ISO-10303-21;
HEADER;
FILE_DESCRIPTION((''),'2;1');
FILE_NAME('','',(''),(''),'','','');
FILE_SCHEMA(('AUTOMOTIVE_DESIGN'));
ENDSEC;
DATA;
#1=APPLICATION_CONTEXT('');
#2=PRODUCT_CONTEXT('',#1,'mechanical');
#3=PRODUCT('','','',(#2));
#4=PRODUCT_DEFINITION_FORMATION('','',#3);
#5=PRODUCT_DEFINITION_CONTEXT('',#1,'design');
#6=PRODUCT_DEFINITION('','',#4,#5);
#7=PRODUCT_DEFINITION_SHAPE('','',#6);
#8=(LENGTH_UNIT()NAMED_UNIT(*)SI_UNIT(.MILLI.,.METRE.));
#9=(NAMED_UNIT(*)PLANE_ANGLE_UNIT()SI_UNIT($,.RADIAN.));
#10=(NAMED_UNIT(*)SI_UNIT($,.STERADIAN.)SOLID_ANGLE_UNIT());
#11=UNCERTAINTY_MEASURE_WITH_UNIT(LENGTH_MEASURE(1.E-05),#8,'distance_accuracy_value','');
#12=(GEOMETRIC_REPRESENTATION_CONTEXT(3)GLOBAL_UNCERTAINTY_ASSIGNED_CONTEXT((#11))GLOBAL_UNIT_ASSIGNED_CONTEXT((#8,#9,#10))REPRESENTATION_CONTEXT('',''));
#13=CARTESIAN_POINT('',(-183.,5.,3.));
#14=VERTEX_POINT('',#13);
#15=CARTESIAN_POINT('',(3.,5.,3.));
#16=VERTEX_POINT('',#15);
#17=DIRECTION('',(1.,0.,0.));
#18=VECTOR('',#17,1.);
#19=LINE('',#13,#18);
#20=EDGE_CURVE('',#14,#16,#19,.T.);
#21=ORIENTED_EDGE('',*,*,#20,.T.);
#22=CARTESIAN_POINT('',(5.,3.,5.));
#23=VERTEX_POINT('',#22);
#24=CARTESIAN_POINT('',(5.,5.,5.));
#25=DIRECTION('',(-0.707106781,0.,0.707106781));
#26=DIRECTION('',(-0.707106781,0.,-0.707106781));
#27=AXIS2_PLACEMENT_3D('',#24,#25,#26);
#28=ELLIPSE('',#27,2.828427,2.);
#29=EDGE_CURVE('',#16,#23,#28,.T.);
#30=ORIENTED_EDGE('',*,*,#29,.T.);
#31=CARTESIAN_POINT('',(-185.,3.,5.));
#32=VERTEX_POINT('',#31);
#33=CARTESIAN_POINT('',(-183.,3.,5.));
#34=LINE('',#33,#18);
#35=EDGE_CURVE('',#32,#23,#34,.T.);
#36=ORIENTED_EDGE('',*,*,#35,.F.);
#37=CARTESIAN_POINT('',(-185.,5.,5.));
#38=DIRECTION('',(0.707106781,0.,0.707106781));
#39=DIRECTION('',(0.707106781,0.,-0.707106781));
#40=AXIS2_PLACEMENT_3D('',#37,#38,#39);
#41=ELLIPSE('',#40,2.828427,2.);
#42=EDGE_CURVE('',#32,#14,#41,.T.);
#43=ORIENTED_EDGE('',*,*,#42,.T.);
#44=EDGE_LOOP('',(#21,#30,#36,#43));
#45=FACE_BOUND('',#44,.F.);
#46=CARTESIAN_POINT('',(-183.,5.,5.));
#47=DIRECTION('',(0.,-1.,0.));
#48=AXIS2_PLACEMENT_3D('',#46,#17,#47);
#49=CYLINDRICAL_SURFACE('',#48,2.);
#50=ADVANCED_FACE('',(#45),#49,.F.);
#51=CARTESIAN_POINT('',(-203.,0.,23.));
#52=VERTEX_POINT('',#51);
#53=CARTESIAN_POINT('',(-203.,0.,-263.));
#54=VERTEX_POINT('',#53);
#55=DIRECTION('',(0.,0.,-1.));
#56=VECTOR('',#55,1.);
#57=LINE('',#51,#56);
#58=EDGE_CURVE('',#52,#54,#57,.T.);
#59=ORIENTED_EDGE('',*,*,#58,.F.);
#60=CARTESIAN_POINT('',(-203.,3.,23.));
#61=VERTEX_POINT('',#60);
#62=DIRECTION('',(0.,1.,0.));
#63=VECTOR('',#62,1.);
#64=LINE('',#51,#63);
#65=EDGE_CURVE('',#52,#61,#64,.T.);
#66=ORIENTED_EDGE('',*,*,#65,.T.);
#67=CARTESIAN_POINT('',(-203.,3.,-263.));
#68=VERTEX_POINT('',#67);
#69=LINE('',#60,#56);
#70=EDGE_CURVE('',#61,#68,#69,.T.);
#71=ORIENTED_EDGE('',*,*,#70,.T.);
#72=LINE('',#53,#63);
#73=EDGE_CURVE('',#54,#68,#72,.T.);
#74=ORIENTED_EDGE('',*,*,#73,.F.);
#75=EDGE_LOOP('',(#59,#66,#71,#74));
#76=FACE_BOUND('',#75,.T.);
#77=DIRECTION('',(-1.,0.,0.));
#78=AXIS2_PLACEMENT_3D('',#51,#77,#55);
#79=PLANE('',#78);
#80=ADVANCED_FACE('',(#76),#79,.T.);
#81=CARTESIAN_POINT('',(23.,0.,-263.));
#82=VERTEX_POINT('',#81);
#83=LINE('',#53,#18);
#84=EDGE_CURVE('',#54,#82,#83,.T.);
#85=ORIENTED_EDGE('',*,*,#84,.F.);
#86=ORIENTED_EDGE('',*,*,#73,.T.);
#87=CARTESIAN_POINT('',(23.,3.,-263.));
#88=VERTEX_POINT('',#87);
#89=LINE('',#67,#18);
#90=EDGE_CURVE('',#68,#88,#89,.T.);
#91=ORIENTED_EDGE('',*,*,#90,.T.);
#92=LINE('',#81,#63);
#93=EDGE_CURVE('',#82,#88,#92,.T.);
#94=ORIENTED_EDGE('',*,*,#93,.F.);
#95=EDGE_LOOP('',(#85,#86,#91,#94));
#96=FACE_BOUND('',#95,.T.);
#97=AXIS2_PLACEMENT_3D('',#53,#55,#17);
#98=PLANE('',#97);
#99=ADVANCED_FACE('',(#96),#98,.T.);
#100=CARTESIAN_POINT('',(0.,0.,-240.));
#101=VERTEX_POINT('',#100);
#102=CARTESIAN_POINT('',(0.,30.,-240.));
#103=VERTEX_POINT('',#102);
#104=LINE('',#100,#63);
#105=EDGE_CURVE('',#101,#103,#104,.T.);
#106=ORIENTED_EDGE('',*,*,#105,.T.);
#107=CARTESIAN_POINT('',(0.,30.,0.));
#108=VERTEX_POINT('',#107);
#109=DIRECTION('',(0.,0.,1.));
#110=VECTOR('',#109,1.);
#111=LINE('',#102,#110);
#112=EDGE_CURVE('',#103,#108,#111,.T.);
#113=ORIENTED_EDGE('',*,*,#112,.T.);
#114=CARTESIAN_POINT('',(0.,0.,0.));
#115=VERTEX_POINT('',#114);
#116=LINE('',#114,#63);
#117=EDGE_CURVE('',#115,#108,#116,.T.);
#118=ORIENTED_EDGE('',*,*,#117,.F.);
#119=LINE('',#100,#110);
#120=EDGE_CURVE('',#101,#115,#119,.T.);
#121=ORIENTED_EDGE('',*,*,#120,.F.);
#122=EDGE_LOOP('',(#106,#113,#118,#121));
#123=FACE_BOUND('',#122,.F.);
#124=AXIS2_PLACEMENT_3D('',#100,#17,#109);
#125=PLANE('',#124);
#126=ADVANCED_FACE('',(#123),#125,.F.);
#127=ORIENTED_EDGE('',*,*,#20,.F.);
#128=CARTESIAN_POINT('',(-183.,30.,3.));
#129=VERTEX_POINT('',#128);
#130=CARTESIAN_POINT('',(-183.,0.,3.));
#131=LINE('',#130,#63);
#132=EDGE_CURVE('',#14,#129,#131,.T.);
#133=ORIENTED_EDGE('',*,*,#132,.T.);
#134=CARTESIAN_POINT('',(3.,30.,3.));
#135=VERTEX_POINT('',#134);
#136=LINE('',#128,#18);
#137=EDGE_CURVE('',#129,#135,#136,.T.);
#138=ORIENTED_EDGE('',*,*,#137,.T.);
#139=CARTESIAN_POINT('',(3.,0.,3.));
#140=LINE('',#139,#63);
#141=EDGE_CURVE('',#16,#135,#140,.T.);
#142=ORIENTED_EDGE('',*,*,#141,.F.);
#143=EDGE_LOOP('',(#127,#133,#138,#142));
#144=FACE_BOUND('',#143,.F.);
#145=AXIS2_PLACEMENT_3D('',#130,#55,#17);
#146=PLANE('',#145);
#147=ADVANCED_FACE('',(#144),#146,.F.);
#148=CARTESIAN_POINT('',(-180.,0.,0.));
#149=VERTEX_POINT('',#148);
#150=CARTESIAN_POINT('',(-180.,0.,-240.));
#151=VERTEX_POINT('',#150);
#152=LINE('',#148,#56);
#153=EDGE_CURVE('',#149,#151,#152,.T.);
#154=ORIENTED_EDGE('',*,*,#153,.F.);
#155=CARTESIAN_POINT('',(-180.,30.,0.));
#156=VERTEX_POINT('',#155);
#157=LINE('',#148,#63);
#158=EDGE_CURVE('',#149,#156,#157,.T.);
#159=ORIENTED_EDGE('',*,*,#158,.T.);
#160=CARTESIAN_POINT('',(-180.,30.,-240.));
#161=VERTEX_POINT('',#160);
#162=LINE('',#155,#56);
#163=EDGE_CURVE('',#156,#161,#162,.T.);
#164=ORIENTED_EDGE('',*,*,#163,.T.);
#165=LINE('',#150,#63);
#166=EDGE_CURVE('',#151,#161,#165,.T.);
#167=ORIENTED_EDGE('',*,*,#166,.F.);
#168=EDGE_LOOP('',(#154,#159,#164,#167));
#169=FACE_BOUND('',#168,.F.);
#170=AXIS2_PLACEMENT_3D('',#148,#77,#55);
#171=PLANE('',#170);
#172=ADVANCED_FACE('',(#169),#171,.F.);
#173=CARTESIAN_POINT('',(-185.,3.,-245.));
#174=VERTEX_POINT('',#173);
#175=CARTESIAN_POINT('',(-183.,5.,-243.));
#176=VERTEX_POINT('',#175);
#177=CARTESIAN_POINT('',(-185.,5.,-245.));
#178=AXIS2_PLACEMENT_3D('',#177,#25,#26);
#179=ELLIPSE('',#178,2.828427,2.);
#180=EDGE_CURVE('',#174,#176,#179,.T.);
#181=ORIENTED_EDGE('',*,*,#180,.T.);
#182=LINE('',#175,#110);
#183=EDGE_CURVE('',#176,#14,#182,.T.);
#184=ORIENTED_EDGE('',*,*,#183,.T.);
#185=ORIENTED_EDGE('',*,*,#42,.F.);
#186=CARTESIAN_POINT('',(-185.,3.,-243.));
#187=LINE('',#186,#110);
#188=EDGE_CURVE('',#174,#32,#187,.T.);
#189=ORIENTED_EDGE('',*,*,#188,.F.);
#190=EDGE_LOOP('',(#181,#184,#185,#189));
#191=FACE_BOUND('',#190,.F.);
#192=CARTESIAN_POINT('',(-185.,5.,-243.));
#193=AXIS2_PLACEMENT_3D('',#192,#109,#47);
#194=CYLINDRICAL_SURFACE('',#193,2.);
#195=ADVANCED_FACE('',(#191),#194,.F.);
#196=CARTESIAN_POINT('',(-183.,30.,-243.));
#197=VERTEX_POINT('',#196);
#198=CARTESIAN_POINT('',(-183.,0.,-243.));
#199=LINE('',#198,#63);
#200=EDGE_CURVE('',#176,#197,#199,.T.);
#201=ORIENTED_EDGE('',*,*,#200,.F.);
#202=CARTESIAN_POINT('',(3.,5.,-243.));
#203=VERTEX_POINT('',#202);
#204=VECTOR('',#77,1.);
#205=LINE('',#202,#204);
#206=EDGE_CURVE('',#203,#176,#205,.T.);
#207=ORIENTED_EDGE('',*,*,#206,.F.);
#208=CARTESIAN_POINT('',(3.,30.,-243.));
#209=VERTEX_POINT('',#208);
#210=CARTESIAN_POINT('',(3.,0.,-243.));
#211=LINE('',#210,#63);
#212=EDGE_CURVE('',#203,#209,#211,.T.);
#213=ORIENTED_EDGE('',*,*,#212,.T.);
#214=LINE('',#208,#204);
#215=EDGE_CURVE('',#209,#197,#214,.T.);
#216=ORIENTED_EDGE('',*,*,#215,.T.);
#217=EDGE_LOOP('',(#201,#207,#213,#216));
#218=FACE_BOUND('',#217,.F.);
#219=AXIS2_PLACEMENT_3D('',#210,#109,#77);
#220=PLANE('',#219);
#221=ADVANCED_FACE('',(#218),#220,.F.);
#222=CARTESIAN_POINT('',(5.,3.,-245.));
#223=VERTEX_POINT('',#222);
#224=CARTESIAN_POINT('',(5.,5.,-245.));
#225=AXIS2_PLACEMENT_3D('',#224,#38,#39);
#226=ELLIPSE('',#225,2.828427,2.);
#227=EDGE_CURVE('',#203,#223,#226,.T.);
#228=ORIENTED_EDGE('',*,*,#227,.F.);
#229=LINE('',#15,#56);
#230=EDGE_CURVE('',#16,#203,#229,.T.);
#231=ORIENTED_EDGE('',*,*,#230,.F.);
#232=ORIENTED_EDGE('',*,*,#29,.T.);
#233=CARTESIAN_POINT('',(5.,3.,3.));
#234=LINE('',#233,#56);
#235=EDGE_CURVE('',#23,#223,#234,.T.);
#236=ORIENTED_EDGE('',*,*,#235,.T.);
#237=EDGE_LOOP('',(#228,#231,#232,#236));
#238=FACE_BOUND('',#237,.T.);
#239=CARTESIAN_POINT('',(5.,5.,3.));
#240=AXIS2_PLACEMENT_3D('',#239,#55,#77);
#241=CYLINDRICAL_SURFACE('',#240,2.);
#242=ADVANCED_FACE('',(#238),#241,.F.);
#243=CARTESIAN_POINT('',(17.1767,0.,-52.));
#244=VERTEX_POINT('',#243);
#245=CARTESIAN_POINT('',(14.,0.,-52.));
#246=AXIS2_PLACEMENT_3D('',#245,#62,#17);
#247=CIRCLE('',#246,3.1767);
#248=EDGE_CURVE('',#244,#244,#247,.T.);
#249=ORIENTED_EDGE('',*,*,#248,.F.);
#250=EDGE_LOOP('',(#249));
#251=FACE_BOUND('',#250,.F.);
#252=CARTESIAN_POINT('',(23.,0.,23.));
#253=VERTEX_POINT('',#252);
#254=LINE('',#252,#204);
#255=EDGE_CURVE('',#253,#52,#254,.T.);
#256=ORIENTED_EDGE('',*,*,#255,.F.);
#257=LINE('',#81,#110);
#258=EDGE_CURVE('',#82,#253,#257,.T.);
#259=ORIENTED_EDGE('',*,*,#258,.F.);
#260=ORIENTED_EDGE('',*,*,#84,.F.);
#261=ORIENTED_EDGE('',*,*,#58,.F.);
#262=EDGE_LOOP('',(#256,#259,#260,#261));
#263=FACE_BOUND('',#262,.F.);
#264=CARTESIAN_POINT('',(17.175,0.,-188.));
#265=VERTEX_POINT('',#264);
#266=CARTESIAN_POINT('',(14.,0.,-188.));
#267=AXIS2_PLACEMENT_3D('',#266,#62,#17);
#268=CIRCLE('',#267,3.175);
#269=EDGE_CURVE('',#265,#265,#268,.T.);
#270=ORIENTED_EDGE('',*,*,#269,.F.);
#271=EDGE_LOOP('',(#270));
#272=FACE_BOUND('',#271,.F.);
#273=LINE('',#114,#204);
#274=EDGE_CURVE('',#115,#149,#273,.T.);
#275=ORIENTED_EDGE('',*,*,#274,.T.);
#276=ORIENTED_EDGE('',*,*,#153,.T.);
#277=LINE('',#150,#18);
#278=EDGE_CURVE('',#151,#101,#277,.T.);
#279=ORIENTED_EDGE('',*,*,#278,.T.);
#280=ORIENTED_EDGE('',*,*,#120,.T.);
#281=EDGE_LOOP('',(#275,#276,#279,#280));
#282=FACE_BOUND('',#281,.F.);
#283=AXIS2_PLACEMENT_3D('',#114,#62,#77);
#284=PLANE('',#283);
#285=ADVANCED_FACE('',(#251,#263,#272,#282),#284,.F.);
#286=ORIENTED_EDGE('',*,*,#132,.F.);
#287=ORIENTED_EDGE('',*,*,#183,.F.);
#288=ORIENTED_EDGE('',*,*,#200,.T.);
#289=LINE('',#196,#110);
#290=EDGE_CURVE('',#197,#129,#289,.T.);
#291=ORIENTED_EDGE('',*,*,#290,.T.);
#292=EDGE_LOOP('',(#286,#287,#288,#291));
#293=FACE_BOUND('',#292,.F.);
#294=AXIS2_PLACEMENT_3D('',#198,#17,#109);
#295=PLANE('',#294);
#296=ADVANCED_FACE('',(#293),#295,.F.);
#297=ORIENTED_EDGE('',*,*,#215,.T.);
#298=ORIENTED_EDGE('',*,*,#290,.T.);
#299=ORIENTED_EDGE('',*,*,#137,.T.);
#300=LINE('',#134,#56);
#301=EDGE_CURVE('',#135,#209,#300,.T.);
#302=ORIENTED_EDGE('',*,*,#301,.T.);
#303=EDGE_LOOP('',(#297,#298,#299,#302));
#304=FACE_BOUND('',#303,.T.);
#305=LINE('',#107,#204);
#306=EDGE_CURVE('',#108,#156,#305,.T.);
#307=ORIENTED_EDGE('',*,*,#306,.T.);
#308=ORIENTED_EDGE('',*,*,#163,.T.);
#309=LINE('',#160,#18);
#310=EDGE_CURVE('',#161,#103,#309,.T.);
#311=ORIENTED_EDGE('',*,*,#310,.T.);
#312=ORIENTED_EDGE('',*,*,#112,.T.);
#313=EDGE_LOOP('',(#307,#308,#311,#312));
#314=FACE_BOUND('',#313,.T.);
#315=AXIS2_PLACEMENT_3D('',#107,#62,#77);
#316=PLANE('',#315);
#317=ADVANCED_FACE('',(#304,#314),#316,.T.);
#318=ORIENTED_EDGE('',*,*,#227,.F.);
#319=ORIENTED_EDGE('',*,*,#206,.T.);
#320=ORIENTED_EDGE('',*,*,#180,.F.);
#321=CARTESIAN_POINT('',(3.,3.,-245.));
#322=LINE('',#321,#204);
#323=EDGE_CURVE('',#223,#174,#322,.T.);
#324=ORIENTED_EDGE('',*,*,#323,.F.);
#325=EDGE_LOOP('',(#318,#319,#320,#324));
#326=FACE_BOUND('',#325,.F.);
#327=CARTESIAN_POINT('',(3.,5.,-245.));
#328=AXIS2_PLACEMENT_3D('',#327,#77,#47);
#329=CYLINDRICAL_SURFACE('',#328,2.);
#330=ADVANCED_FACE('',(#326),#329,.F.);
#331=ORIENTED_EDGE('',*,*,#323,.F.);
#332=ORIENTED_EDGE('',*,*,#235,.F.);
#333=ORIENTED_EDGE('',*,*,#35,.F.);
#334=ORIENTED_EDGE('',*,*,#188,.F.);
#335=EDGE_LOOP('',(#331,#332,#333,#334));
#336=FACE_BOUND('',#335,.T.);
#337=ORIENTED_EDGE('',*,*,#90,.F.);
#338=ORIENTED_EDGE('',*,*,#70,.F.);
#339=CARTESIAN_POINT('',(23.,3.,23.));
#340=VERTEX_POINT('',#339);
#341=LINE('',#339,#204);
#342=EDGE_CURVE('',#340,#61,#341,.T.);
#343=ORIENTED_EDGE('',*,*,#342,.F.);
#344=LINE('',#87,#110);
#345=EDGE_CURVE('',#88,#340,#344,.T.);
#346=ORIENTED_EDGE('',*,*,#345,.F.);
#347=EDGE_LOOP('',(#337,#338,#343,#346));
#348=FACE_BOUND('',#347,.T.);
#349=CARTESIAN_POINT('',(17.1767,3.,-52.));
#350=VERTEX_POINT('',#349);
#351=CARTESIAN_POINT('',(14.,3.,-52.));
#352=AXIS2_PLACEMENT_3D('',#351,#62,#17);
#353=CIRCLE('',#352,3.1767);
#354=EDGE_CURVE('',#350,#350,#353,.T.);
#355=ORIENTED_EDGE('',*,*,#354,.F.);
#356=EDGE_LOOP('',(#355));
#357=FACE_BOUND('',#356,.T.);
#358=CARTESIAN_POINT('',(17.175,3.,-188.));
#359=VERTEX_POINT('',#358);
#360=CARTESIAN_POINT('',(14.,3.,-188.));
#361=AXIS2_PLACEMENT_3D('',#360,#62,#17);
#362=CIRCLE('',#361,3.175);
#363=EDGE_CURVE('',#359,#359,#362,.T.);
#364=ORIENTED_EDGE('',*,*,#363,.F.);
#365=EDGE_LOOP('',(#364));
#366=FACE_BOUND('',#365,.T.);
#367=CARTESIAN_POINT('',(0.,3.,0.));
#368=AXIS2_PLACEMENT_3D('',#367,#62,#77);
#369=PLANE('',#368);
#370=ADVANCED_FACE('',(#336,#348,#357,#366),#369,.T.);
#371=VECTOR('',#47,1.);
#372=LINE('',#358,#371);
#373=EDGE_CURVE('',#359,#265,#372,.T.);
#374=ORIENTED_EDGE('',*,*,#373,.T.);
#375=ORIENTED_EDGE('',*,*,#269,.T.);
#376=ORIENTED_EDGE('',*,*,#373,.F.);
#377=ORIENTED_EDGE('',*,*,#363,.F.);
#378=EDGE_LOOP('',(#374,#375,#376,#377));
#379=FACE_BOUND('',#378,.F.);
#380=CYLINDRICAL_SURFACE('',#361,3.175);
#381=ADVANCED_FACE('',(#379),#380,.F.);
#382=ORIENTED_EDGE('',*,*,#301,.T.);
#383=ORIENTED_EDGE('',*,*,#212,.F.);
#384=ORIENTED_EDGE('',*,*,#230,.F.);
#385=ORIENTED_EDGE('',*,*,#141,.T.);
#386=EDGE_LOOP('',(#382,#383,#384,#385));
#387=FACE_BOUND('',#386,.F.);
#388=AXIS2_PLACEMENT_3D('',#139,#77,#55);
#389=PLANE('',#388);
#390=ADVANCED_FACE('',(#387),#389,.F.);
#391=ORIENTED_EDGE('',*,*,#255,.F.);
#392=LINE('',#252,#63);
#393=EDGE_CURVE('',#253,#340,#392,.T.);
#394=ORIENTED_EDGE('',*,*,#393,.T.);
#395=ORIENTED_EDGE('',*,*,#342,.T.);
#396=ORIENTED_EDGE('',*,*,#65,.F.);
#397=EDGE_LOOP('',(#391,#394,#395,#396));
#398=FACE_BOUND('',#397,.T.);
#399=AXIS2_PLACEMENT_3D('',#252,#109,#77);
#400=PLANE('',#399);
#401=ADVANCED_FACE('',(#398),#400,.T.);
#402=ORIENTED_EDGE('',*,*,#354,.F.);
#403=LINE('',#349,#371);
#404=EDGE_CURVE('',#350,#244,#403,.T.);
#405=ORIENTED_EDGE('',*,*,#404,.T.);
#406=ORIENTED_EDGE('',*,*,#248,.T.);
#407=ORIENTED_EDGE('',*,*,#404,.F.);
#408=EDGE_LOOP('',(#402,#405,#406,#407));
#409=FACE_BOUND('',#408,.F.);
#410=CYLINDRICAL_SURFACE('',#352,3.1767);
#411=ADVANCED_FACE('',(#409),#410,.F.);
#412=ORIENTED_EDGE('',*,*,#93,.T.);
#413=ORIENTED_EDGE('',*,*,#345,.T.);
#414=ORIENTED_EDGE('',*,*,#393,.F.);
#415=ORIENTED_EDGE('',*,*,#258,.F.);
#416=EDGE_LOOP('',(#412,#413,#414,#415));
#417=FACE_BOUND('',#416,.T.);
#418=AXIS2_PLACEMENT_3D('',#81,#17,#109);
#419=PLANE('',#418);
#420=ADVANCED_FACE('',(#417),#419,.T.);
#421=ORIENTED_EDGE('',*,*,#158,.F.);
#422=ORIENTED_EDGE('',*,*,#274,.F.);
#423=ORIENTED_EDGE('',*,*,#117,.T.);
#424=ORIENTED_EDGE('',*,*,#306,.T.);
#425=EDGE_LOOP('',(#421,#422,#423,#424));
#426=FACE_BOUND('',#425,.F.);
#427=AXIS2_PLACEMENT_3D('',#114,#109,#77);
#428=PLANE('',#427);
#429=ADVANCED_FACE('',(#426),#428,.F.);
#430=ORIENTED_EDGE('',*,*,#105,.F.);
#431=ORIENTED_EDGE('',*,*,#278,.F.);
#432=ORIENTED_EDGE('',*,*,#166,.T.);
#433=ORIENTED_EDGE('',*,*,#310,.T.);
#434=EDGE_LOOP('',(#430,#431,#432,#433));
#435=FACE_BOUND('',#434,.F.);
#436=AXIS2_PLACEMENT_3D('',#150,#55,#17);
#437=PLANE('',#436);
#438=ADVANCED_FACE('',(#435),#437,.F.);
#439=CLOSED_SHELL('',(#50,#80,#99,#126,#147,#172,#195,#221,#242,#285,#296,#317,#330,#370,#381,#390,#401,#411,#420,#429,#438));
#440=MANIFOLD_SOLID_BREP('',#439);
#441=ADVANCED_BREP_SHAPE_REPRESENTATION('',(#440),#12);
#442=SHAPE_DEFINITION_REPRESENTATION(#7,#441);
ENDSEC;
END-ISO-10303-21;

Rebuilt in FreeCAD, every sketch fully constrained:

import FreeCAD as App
import Part
import Sketcher
Q = App.Units.Quantity


def edges_at(feature, points):
    """Names of the edges that pass closest to the given points."""
    edges = feature.Shape.Edges
    near = lambda p: min(range(len(edges)), key=lambda i: edges[i].distToShape(Part.Vertex(*p))[0])
    return sorted({f"Edge{near(p) + 1}" for p in points})

doc = App.newDocument("Part")
body = doc.addObject("PartDesign::Body", "Body")

sketch1 = doc.addObject("Sketcher::SketchObject", "Sketch")
body.addObject(sketch1)
sketch1.AttachmentSupport = (doc.XZ_Plane, [""])
sketch1.MapMode = "FlatFace"
sketch1.addGeometry([
    Part.LineSegment(App.Vector(3, 3, 0), App.Vector(3, -243, 0)),
    Part.LineSegment(App.Vector(3, -243, 0), App.Vector(-183, -243, 0)),
    Part.LineSegment(App.Vector(-183, -243, 0), App.Vector(-183, 3, 0)),
    Part.LineSegment(App.Vector(-183, 3, 0), App.Vector(3, 3, 0)),
    Part.LineSegment(App.Vector(0, -240, 0), App.Vector(0, 0, 0)),
    Part.LineSegment(App.Vector(0, 0, 0), App.Vector(-180, 0, 0)),
    Part.LineSegment(App.Vector(-180, 0, 0), App.Vector(-180, -240, 0)),
    Part.LineSegment(App.Vector(-180, -240, 0), App.Vector(0, -240, 0)),
], False)
sketch1.addConstraint([
    Sketcher.Constraint("Coincident", 0, 2, 1, 1),
    Sketcher.Constraint("Coincident", 1, 2, 2, 1),
    Sketcher.Constraint("Coincident", 2, 2, 3, 1),
    Sketcher.Constraint("Coincident", 3, 2, 0, 1),
    Sketcher.Constraint("Coincident", 4, 2, 5, 1),
    Sketcher.Constraint("Coincident", 5, 2, 6, 1),
    Sketcher.Constraint("Coincident", 6, 2, 7, 1),
    Sketcher.Constraint("Coincident", 7, 2, 4, 1),
    Sketcher.Constraint("Vertical", 0),
    Sketcher.Constraint("Horizontal", 1),
    Sketcher.Constraint("Vertical", 2),
    Sketcher.Constraint("Horizontal", 3),
    Sketcher.Constraint("Vertical", 4),
    Sketcher.Constraint("Horizontal", 5),
    Sketcher.Constraint("Vertical", 6),
    Sketcher.Constraint("Horizontal", 7),
    Sketcher.Constraint("Coincident", 4, 2, -1, 1),
    Sketcher.Constraint("DistanceX", 5, 2, 5, 1, Q("180 mm")),
    Sketcher.Constraint("DistanceY", 4, 1, 4, 2, Q("240 mm")),
    Sketcher.Constraint("DistanceX", -1, 1, 0, 2, Q("3 mm")),
    Sketcher.Constraint("DistanceY", -1, 1, 2, 2, Q("3 mm")),
    Sketcher.Constraint("DistanceX", 2, 2, 5, 2, Q("3 mm")),
    Sketcher.Constraint("DistanceY", 1, 2, 6, 2, Q("3 mm")),
])
pad1 = doc.addObject("PartDesign::Pad", "Pad")
body.addObject(pad1)
pad1.Profile = sketch1
pad1.Length = 30
pad1.Reversed = True

sketch2 = doc.addObject("Sketcher::SketchObject", "Sketch001")
body.addObject(sketch2)
sketch2.AttachmentSupport = (doc.XZ_Plane, [""])
sketch2.MapMode = "FlatFace"
sketch2.addGeometry([
    Part.LineSegment(App.Vector(-203, -263, 0), App.Vector(-203, 23, 0)),
    Part.LineSegment(App.Vector(-203, 23, 0), App.Vector(23, 23, 0)),
    Part.LineSegment(App.Vector(23, 23, 0), App.Vector(23, -263, 0)),
    Part.LineSegment(App.Vector(23, -263, 0), App.Vector(-203, -263, 0)),
    Part.LineSegment(App.Vector(-183, -243, 0), App.Vector(3, -243, 0)),
    Part.LineSegment(App.Vector(3, -243, 0), App.Vector(3, 3, 0)),
    Part.LineSegment(App.Vector(3, 3, 0), App.Vector(-183, 3, 0)),
    Part.LineSegment(App.Vector(-183, 3, 0), App.Vector(-183, -243, 0)),
], False)
sketch2.addConstraint([
    Sketcher.Constraint("Coincident", 0, 2, 1, 1),
    Sketcher.Constraint("Coincident", 1, 2, 2, 1),
    Sketcher.Constraint("Coincident", 2, 2, 3, 1),
    Sketcher.Constraint("Coincident", 3, 2, 0, 1),
    Sketcher.Constraint("Coincident", 4, 2, 5, 1),
    Sketcher.Constraint("Coincident", 5, 2, 6, 1),
    Sketcher.Constraint("Coincident", 6, 2, 7, 1),
    Sketcher.Constraint("Coincident", 7, 2, 4, 1),
    Sketcher.Constraint("Vertical", 0),
    Sketcher.Constraint("Horizontal", 1),
    Sketcher.Constraint("Vertical", 2),
    Sketcher.Constraint("Horizontal", 3),
    Sketcher.Constraint("Horizontal", 4),
    Sketcher.Constraint("Vertical", 5),
    Sketcher.Constraint("Horizontal", 6),
    Sketcher.Constraint("Vertical", 7),
    Sketcher.Constraint("DistanceX", -1, 1, 4, 2, Q("3 mm")),
    Sketcher.Constraint("DistanceY", -1, 1, 5, 2, Q("3 mm")),
    Sketcher.Constraint("DistanceX", 4, 2, 2, 2, Q("20 mm")),
    Sketcher.Constraint("DistanceY", 2, 2, 4, 2, Q("20 mm")),
    Sketcher.Constraint("DistanceY", 5, 2, 1, 2, Q("20 mm")),
    Sketcher.Constraint("DistanceX", 0, 2, 6, 2, Q("20 mm")),
    Sketcher.Constraint("DistanceX", 1, 1, 1, 2, Q("226 mm")),
    Sketcher.Constraint("DistanceY", 0, 1, 0, 2, Q("286 mm")),
])
pad2 = doc.addObject("PartDesign::Pad", "Pad001")
body.addObject(pad2)
pad2.Profile = sketch2
pad2.Length = 3
pad2.Reversed = True
doc.recompute()

fillet = doc.addObject("PartDesign::Fillet", "Fillet")
body.addObject(fillet)
fillet.Base = (pad2, edges_at(pad2, [
    (3, 3, -120),
    (-90, 3, 3),
    (-90, 3, -243),
    (-183, 3, -120),
]))
fillet.Radius = 2

sketch3 = doc.addObject("Sketcher::SketchObject", "Sketch002")
body.addObject(sketch3)
sketch3.AttachmentSupport = (doc.XZ_Plane, [""])
sketch3.MapMode = "FlatFace"
sketch3.AttachmentOffset = App.Placement(App.Vector(0, 0, -3), App.Rotation())
sketch3.addGeometry([
    Part.Circle(App.Vector(14, -188, 0), App.Vector(0, 0, 1), 3.2),
    Part.Circle(App.Vector(14, -52, 0), App.Vector(0, 0, 1), 3.2),
], False)
sketch3.addConstraint([
    Sketcher.Constraint("Vertical", 0, 3, 1, 3),
    Sketcher.Constraint("Diameter", 0, Q("6.35 mm")),
    Sketcher.Constraint("DistanceX", -1, 1, 0, 3, Q("14 mm")),
    Sketcher.Constraint("DistanceY", 0, 3, -1, 1, Q("188 mm")),
    Sketcher.Constraint("DistanceY", 1, 3, -1, 1, Q("52 mm")),
    Sketcher.Constraint("Diameter", 1, Q("6.3534 mm")),
])
pocket1 = doc.addObject("PartDesign::Pocket", "Pocket")
body.addObject(pocket1)
pocket1.Profile = sketch3
pocket1.Length = 3
pocket1.Reversed = True

doc.recompute()
